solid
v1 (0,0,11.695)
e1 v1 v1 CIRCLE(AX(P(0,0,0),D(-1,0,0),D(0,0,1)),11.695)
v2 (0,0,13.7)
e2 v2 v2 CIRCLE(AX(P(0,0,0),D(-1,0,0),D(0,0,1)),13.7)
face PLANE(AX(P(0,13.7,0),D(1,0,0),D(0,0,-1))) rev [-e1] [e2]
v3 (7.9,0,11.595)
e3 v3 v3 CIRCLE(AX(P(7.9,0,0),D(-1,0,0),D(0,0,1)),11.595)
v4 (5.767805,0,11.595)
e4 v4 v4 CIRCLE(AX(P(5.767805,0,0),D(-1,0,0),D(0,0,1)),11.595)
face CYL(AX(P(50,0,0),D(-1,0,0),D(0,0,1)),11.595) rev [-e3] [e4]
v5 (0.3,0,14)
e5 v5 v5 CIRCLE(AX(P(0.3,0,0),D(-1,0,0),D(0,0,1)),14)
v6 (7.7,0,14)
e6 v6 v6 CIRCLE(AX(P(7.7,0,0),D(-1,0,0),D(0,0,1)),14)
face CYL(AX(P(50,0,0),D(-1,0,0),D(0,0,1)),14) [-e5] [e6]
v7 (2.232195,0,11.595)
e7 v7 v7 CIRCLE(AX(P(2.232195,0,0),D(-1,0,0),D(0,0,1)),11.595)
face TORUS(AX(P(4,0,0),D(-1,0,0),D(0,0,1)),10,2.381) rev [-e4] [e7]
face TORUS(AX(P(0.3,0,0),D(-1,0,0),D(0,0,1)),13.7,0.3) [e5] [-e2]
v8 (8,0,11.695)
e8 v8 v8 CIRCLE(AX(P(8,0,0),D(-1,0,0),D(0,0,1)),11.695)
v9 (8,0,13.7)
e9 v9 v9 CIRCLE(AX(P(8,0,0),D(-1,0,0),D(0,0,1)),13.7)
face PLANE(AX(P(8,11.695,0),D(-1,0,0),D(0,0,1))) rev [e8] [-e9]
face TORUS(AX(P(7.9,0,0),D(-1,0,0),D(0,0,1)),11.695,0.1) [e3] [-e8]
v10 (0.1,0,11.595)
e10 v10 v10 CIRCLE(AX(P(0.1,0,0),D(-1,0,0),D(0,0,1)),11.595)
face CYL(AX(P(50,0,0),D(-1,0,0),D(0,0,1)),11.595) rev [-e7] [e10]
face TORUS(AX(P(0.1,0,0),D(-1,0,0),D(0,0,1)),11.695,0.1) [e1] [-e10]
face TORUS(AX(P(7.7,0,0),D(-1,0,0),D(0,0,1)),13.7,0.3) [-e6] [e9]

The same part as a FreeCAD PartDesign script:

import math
import FreeCAD as App
import Part
import Sketcher

V = App.Vector

doc = App.newDocument("Part")
body = doc.addObject("PartDesign::Body", "Body")

sketch1 = body.newObject("Sketcher::SketchObject", "Sketch")
sketch1.AttachmentSupport = (doc.getObject("XY_Plane"), [""])
sketch1.MapMode = "FlatFace"
sketch1.addGeometry(Part.LineSegment(V(0, 13.7, 0), V(0, 11.7, 0)), False)
sketch1.addGeometry(Part.ArcOfCircle(Part.Circle(V(0.1, 11.7, 0), V(0, 0, 1), 0.1), math.radians(180), math.radians(270)), False)
sketch1.addGeometry(Part.LineSegment(V(0.1, 11.6, 0), V(2.23, 11.6, 0)), False)
sketch1.addGeometry(Part.ArcOfCircle(Part.Circle(V(4, 10, 0), V(0, 0, 1), 2.38), math.radians(42), math.radians(138)), False)
sketch1.addGeometry(Part.LineSegment(V(5.77, 11.6, 0), V(7.9, 11.6, 0)), False)
sketch1.addGeometry(Part.ArcOfCircle(Part.Circle(V(7.9, 11.7, 0), V(0, 0, 1), 0.1), math.radians(-90), math.radians(0)), False)
sketch1.addGeometry(Part.LineSegment(V(8, 11.7, 0), V(8, 13.7, 0)), False)
sketch1.addGeometry(Part.ArcOfCircle(Part.Circle(V(7.7, 13.7, 0), V(0, 0, 1), 0.3), math.radians(0), math.radians(90)), False)
sketch1.addGeometry(Part.LineSegment(V(7.7, 14, 0), V(0.3, 14, 0)), False)
sketch1.addGeometry(Part.ArcOfCircle(Part.Circle(V(0.3, 13.7, 0), V(0, 0, 1), 0.3), math.radians(90), math.radians(180)), False)
sketch1.addConstraint(Sketcher.Constraint("Tangent", 0, 2, 1, 1))
sketch1.addConstraint(Sketcher.Constraint("Tangent", 1, 2, 2, 1))
sketch1.addConstraint(Sketcher.Constraint("Coincident", 2, 2, 3, 2))
sketch1.addConstraint(Sketcher.Constraint("Coincident", 3, 1, 4, 1))
sketch1.addConstraint(Sketcher.Constraint("Tangent", 4, 2, 5, 1))
sketch1.addConstraint(Sketcher.Constraint("Tangent", 5, 2, 6, 1))
sketch1.addConstraint(Sketcher.Constraint("Tangent", 6, 2, 7, 1))
sketch1.addConstraint(Sketcher.Constraint("Tangent", 7, 2, 8, 1))
sketch1.addConstraint(Sketcher.Constraint("Tangent", 8, 2, 9, 1))
sketch1.addConstraint(Sketcher.Constraint("Tangent", 9, 2, 0, 1))
sketch1.addConstraint(Sketcher.Constraint("Vertical", 0))
sketch1.addConstraint(Sketcher.Constraint("Horizontal", 2))
sketch1.addConstraint(Sketcher.Constraint("Horizontal", 4))
sketch1.addConstraint(Sketcher.Constraint("Vertical", 6))
sketch1.addConstraint(Sketcher.Constraint("Horizontal", 8))
sketch1.addConstraint(Sketcher.Constraint("Equal", 1, 5))
sketch1.addConstraint(Sketcher.Constraint("Equal", 7, 9))
sketch1.addConstraint(Sketcher.Constraint("PointOnObject", 0, 2, -2))
sketch1.addConstraint(Sketcher.Constraint("Horizontal", 1, 3, 5, 3))
sketch1.addConstraint(Sketcher.Constraint("Equal", 2, 4))
sketch1.addConstraint(Sketcher.Constraint("Radius", 1, 0.1))
sketch1.addConstraint(Sketcher.Constraint("Radius", 7, 0.3))
sketch1.addConstraint(Sketcher.Constraint("DistanceX", 8, 2, 8, 1, 7.4))
sketch1.addConstraint(Sketcher.Constraint("DistanceY", -1, 1, 3, 3, 10.0))
sketch1.addConstraint(Sketcher.Constraint("DistanceY", -1, 1, 7, 2, 14.0))
sketch1.addConstraint(Sketcher.Constraint("Radius", 3, 2.381))
sketch1.addConstraint(Sketcher.Constraint("DistanceY", 0, 2, 0, 1, 2.005))
revolution = body.newObject("PartDesign::Revolution", "Revolution")
revolution.Profile = sketch1
revolution.ReferenceAxis = (sketch1, ["H_Axis"])
revolution.Angle = 360

doc.recompute()
